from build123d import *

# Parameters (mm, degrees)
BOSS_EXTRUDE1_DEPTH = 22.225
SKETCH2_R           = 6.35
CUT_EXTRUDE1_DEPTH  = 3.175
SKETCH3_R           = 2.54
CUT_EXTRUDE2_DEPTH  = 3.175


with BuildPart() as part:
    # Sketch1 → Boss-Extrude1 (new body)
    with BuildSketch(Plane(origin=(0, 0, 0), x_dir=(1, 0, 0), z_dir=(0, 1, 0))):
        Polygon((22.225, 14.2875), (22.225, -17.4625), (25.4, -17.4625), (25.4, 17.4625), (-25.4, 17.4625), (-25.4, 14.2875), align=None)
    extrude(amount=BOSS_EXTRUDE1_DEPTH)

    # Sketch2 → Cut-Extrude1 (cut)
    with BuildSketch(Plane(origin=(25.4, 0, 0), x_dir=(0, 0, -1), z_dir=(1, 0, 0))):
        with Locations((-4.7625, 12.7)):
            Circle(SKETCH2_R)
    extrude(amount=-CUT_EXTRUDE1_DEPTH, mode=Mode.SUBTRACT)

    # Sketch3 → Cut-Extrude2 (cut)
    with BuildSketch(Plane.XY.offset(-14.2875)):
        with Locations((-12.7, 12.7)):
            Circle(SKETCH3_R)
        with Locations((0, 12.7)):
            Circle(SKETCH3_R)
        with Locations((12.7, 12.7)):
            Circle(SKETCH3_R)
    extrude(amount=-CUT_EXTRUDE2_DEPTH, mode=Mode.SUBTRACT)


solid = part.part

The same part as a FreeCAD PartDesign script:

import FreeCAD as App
import Part
import Sketcher
Q = App.Units.Quantity

doc = App.newDocument("Part")
params = doc.addObject("Spreadsheet::Sheet", "Params")
for row, (alias, value) in enumerate([
    ("sketch1_width", "2 in"),
    ("sketch1_height", "1.25 in"),
    ("sketch1_width2", "0.125 in"),
    ("pad1_length", "0.875 in"),
    ("sketch2_diameter", "0.5 in"),
    ("pocket1_length", "0.125 in"),
    ("sketch3_diameter", "0.2 in"),
    ("pocket2_length", "0.125 in"),
], start=1):
    params.set(f"A{row}", alias)
    params.set(f"B{row}", "=" + value)
    params.setAlias(f"B{row}", alias)

body = doc.addObject("PartDesign::Body", "Body")

sketch1 = body.newObject("Sketcher::SketchObject", "Sketch")
sketch1.AttachmentSupport = (doc.getObject("XZ_Plane"), [""])
sketch1.MapMode = "FlatFace"
sketch1.addGeometry(Part.LineSegment(App.Vector(22.225, -14.2875, 0), App.Vector(22.225, 17.4625, 0)), False)
sketch1.addGeometry(Part.LineSegment(App.Vector(22.225, 17.4625, 0), App.Vector(25.4, 17.4625, 0)), False)
sketch1.addGeometry(Part.LineSegment(App.Vector(25.4, 17.4625, 0), App.Vector(25.4, -17.4625, 0)), False)
sketch1.addGeometry(Part.LineSegment(App.Vector(25.4, -17.4625, 0), App.Vector(-25.4, -17.4625, 0)), False)
sketch1.addGeometry(Part.LineSegment(App.Vector(-25.4, -17.4625, 0), App.Vector(-25.4, -14.2875, 0)), False)
sketch1.addGeometry(Part.LineSegment(App.Vector(-25.4, -14.2875, 0), App.Vector(22.225, -14.2875, 0)), False)
sketch1.addConstraint(Sketcher.Constraint("Coincident", 0, 2, 1, 1))
sketch1.addConstraint(Sketcher.Constraint("Coincident", 1, 2, 2, 1))
sketch1.addConstraint(Sketcher.Constraint("Coincident", 2, 2, 3, 1))
sketch1.addConstraint(Sketcher.Constraint("Coincident", 3, 2, 4, 1))
sketch1.addConstraint(Sketcher.Constraint("Coincident", 4, 2, 5, 1))
sketch1.addConstraint(Sketcher.Constraint("Coincident", 5, 2, 0, 1))
sketch1.addConstraint(Sketcher.Constraint("Vertical", 0))
sketch1.addConstraint(Sketcher.Constraint("Horizontal", 1))
sketch1.addConstraint(Sketcher.Constraint("Vertical", 2))
sketch1.addConstraint(Sketcher.Constraint("Horizontal", 3))
sketch1.addConstraint(Sketcher.Constraint("Vertical", 4))
sketch1.addConstraint(Sketcher.Constraint("Horizontal", 5))
sketch1.addConstraint(Sketcher.Constraint("Symmetric", 1, 2, 3, 2, -1, 1))
sketch1.addConstraint(Sketcher.Constraint("Equal", 1, 4))
sketch1.addConstraint(Sketcher.Constraint("DistanceX", 3, 2, 3, 1, Q("2 in")))
sketch1.addConstraint(Sketcher.Constraint("DistanceY", 0, 1, 0, 2, Q("1.25 in")))
sketch1.addConstraint(Sketcher.Constraint("DistanceX", 1, 1, 1, 2, Q("0.125 in")))
sketch1.setExpression("Constraints[14]", "Params.sketch1_width")
sketch1.setExpression("Constraints[15]", "Params.sketch1_height")
sketch1.setExpression("Constraints[16]", "Params.sketch1_width2")
pad1 = body.newObject("PartDesign::Pad", "Pad")
pad1.Profile = sketch1
pad1.setExpression("Length", "Params.pad1_length")
pad1.Reversed = True

sketch2 = body.newObject("Sketcher::SketchObject", "Sketch001")
sketch2.AttachmentSupport = (doc.getObject("YZ_Plane"), [""])
sketch2.MapMode = "FlatFace"
sketch2.AttachmentOffset = App.Placement(App.Vector(0, 0, 1 * 25.4), App.Rotation())
sketch2.addGeometry(Part.Circle(App.Vector(12.7, 4.7625, 0), App.Vector(0, 0, 1), 6.35), False)
sketch2.addConstraint(Sketcher.Constraint("Diameter", 0, Q("0.5 in")))
sketch2.addConstraint(Sketcher.Constraint("DistanceX", -1, 1, 0, 3, Q("0.5 in")))
sketch2.addConstraint(Sketcher.Constraint("DistanceY", -1, 1, 0, 3, Q("0.1875 in")))
sketch2.setExpression("Constraints[0]", "Params.sketch2_diameter")
pocket1 = body.newObject("PartDesign::Pocket", "Pocket")
pocket1.Profile = sketch2
pocket1.setExpression("Length", "Params.pocket1_length")

sketch3 = body.newObject("Sketcher::SketchObject", "Sketch002")
sketch3.AttachmentSupport = (doc.getObject("XY_Plane"), [""])
sketch3.MapMode = "FlatFace"
sketch3.AttachmentOffset = App.Placement(App.Vector(0, 0, -0.5625 * 25.4), App.Rotation())
sketch3.addGeometry(Part.Circle(App.Vector(-12.7, 12.7, 0), App.Vector(0, 0, 1), 2.54), False)
sketch3.addGeometry(Part.Circle(App.Vector(0, 12.7, 0), App.Vector(0, 0, 1), 2.54), False)
sketch3.addGeometry(Part.Circle(App.Vector(12.7, 12.7, 0), App.Vector(0, 0, 1), 2.54), False)
sketch3.addConstraint(Sketcher.Constraint("Equal", 0, 1))
sketch3.addConstraint(Sketcher.Constraint("Equal", 1, 2))
sketch3.addConstraint(Sketcher.Constraint("Symmetric", 0, 3, 2, 3, -2))
sketch3.addConstraint(Sketcher.Constraint("PointOnObject", 1, 3, -2))
sketch3.addConstraint(Sketcher.Constraint("Horizontal", 0, 3, 1, 3))
sketch3.addConstraint(Sketcher.Constraint("Diameter", 0, Q("0.2 in")))
sketch3.addConstraint(Sketcher.Constraint("DistanceX", 0, 3, 2, 3, Q("1 in")))
sketch3.addConstraint(Sketcher.Constraint("DistanceY", -1, 1, 0, 3, Q("0.5 in")))
sketch3.setExpression("Constraints[5]", "Params.sketch3_diameter")
pocket2 = body.newObject("PartDesign::Pocket", "Pocket001")
pocket2.Profile = sketch3
pocket2.setExpression("Length", "Params.pocket2_length")

doc.recompute()
